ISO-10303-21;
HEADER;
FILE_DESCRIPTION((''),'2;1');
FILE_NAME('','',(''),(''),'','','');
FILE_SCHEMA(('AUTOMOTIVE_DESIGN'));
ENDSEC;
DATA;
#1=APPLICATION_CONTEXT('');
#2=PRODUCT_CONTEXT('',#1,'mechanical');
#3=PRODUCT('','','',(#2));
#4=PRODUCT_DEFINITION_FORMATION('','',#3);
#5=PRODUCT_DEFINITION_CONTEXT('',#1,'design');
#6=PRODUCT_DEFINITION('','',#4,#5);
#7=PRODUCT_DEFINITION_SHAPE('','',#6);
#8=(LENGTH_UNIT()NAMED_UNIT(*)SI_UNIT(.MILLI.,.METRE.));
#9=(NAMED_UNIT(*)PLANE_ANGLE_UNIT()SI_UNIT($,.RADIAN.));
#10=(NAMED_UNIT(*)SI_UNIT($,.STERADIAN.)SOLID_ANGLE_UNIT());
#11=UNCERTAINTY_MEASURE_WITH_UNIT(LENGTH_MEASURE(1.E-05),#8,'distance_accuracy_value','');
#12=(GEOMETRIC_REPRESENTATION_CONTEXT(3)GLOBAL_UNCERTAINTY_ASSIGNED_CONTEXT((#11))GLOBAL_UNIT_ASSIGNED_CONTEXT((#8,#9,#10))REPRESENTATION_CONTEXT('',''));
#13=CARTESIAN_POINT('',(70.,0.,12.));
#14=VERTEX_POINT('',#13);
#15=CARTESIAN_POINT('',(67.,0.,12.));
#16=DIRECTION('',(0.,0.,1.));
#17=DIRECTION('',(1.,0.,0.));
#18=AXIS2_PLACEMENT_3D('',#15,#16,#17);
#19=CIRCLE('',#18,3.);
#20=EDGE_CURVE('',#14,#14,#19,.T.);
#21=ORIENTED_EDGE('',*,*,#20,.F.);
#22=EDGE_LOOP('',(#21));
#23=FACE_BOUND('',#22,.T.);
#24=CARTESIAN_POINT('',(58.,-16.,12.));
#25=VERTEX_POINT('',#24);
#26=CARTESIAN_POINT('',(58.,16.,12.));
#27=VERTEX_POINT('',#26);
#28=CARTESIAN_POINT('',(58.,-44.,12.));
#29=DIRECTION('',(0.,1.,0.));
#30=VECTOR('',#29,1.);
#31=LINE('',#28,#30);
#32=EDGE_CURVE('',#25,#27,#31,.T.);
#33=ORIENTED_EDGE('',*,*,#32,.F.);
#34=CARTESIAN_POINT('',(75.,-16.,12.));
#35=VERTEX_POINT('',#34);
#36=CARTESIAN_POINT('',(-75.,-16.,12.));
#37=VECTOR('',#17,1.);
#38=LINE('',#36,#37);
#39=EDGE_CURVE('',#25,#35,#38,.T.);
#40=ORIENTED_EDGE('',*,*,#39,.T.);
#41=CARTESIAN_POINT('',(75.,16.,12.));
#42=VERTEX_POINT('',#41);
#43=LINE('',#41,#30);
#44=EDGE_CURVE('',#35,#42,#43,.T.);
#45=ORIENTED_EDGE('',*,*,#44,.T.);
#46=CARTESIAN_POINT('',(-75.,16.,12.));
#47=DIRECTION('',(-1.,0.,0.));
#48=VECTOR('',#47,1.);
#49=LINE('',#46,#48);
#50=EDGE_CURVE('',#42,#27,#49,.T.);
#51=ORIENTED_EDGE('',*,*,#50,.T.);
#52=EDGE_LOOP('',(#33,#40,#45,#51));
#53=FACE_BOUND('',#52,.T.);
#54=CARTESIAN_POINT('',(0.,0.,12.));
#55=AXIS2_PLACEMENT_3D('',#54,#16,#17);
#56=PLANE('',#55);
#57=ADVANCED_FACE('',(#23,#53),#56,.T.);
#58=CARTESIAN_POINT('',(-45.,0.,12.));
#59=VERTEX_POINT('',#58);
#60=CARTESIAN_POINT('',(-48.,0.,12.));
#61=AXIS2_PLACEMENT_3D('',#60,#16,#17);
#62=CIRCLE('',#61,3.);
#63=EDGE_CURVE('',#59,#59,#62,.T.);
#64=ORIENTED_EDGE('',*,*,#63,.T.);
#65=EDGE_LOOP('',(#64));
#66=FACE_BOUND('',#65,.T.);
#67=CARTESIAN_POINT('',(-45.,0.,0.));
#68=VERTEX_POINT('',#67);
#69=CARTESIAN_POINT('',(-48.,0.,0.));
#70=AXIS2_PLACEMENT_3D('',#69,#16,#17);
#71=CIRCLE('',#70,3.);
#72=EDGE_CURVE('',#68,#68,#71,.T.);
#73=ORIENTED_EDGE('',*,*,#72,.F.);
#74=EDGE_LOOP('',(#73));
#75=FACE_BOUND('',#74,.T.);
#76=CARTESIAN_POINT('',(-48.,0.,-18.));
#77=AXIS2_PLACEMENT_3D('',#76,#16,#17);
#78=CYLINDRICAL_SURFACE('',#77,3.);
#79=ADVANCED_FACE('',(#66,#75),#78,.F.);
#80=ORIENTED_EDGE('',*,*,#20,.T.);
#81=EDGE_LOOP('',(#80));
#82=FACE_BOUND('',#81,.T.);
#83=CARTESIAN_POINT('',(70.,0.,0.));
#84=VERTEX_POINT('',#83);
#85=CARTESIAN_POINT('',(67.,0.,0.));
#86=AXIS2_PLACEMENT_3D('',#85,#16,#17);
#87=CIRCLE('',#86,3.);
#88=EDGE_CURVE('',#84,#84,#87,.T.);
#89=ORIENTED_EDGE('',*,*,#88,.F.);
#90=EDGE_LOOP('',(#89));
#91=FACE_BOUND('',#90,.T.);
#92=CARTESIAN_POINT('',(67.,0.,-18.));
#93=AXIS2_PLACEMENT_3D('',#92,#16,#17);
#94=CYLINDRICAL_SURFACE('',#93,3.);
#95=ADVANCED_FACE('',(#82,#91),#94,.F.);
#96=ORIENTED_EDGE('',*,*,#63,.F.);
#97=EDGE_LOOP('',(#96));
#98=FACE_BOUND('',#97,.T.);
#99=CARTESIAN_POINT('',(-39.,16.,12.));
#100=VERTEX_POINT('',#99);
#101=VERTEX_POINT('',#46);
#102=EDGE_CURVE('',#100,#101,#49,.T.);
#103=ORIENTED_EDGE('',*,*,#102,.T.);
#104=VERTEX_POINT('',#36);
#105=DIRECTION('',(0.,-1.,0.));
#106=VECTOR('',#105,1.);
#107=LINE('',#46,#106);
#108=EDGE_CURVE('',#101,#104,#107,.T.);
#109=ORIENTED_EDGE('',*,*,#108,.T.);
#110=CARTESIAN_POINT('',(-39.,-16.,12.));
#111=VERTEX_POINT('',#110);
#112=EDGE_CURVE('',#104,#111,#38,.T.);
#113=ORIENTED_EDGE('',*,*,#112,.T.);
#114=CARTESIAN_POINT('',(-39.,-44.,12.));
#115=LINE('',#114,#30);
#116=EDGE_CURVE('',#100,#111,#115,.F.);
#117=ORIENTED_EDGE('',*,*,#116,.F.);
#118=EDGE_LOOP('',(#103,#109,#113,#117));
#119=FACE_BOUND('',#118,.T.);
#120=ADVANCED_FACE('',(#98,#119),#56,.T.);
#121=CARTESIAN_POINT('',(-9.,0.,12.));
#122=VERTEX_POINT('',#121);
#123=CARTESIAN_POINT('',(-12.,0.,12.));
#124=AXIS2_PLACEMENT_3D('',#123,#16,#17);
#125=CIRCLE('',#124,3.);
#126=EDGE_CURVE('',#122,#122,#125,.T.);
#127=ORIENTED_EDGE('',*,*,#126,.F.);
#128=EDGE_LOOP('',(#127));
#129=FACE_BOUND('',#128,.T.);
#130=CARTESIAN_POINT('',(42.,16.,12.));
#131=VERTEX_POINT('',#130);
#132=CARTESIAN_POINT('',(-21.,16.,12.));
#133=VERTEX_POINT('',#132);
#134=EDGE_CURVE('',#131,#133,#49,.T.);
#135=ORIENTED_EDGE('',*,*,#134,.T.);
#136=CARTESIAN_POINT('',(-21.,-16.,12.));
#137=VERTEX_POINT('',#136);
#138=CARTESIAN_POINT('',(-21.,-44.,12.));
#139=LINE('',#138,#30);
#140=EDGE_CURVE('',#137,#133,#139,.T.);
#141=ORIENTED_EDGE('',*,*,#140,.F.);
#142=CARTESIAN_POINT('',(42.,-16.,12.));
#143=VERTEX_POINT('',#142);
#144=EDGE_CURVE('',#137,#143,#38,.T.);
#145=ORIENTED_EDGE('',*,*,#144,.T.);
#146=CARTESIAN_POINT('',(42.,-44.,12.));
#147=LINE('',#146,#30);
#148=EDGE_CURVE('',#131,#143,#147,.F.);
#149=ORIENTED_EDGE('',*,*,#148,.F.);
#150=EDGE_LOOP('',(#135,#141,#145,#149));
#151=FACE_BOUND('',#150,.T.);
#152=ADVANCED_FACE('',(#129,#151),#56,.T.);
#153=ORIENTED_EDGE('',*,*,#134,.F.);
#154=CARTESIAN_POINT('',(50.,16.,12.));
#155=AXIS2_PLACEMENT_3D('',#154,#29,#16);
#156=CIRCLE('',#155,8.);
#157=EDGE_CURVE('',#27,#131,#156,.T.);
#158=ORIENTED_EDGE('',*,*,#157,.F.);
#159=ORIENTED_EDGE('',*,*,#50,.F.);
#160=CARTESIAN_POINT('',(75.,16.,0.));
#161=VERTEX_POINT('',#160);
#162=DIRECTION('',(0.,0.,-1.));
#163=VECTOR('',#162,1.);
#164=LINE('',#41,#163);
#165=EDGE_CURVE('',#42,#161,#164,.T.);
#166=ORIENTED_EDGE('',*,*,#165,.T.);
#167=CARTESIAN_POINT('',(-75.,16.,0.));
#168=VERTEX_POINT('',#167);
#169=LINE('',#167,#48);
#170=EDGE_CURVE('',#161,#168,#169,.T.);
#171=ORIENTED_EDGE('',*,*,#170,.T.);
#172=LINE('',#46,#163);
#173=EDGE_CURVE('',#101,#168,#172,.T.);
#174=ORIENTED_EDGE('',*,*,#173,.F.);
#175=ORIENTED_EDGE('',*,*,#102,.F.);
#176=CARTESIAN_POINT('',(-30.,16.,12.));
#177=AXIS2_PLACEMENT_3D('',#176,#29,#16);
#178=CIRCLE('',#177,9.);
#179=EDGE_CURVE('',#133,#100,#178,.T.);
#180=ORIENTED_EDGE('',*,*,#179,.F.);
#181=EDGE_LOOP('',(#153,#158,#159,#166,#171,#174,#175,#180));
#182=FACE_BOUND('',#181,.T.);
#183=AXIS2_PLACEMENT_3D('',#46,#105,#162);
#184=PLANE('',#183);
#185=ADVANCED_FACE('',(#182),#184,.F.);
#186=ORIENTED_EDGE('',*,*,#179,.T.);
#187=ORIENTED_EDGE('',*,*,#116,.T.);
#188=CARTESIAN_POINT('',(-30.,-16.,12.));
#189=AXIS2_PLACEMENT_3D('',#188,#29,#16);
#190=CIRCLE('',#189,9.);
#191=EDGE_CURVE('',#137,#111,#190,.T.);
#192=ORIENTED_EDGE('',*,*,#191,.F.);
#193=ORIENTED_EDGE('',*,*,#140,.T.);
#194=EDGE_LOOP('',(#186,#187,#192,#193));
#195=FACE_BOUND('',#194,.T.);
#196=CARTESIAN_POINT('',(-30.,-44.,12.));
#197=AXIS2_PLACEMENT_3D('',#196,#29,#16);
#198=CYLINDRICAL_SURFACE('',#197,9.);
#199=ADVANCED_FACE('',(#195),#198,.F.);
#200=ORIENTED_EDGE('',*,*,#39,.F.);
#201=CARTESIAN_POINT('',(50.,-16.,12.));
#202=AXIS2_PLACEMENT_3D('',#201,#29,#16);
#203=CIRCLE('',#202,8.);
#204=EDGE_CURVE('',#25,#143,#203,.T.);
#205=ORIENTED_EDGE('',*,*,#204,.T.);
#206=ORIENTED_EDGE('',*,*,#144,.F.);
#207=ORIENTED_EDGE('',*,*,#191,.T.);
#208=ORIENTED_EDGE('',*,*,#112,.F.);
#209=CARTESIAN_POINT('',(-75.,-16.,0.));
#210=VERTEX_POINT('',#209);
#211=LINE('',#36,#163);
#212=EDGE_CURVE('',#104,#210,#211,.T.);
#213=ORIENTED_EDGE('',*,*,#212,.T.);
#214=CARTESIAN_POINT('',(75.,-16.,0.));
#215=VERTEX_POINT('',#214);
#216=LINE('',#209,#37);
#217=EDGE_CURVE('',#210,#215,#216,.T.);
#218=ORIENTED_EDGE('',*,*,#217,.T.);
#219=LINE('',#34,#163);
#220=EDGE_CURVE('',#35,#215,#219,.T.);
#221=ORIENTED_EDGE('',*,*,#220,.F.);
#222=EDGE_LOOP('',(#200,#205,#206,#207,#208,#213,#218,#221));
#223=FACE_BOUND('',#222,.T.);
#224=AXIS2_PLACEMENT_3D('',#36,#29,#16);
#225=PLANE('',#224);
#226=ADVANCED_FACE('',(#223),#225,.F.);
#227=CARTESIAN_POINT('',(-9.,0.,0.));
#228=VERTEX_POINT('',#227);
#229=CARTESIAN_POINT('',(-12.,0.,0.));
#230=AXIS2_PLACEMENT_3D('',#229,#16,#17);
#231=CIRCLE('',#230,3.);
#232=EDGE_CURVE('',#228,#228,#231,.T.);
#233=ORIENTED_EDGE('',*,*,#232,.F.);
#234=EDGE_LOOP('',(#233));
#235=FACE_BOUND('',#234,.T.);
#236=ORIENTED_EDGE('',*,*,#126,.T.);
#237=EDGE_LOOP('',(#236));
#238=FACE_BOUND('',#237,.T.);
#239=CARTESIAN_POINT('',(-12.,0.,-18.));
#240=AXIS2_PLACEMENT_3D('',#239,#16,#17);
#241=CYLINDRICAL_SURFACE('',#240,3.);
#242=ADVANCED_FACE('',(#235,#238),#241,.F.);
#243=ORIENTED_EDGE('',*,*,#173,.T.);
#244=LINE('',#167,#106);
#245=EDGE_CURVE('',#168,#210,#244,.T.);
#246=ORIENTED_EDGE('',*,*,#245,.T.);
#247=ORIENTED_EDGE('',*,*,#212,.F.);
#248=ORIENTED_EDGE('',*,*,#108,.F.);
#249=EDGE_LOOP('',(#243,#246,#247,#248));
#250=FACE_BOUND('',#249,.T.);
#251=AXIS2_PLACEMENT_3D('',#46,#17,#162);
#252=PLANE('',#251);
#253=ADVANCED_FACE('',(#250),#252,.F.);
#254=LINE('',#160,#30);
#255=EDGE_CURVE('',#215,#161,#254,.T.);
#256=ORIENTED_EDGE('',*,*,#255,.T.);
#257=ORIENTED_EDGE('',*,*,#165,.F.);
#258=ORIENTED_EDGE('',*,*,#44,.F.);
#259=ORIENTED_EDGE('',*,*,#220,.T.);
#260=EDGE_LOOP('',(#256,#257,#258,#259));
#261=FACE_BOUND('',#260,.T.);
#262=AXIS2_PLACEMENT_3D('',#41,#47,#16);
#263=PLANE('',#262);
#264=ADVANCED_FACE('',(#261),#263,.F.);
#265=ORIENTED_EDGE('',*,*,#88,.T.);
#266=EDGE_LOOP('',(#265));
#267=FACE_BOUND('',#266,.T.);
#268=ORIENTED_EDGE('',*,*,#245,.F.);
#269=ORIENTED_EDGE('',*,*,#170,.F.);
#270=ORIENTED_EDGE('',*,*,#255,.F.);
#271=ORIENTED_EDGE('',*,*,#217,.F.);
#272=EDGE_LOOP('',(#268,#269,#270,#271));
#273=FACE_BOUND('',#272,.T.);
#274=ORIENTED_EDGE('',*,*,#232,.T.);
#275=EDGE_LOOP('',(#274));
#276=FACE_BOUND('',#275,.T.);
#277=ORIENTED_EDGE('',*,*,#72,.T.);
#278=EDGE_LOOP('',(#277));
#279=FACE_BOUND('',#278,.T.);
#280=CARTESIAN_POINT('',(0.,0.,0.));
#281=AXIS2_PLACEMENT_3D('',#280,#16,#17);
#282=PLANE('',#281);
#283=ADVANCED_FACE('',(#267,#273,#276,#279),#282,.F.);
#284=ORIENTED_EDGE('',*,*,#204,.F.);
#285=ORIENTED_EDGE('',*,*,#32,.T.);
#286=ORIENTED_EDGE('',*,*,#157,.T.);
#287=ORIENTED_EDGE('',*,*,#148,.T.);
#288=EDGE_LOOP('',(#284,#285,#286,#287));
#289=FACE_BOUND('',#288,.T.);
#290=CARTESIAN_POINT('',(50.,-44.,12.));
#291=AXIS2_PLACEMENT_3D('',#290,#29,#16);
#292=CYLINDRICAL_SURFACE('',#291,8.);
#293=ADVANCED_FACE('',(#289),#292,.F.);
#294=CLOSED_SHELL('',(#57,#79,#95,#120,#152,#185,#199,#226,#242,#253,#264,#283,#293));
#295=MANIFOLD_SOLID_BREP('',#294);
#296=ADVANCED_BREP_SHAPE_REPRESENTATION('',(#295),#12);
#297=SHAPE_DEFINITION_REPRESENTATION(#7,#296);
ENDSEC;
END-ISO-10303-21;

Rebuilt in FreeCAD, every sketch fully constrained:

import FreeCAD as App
import Part
import Sketcher
from FreeCAD import Vector
Q = App.Units.Quantity

doc = App.newDocument("Part")
body = doc.addObject("PartDesign::Body", "Body")

sketch1 = body.newObject("Sketcher::SketchObject", "Sketch")
sketch1.AttachmentSupport = (doc.getObject("XY_Plane"), [""])
sketch1.MapMode = "FlatFace"
sketch1.addGeometry(Part.LineSegment(Vector(-75, 16, 0), Vector(-75, -16, 0)), False)
sketch1.addGeometry(Part.LineSegment(Vector(-75, -16, 0), Vector(75, -16, 0)), False)
sketch1.addGeometry(Part.LineSegment(Vector(75, -16, 0), Vector(75, 16, 0)), False)
sketch1.addGeometry(Part.LineSegment(Vector(75, 16, 0), Vector(-75, 16, 0)), False)
sketch1.addConstraint(Sketcher.Constraint("Coincident", 0, 2, 1, 1))
sketch1.addConstraint(Sketcher.Constraint("Coincident", 1, 2, 2, 1))
sketch1.addConstraint(Sketcher.Constraint("Coincident", 2, 2, 3, 1))
sketch1.addConstraint(Sketcher.Constraint("Coincident", 3, 2, 0, 1))
sketch1.addConstraint(Sketcher.Constraint("Vertical", 0))
sketch1.addConstraint(Sketcher.Constraint("Horizontal", 1))
sketch1.addConstraint(Sketcher.Constraint("Vertical", 2))
sketch1.addConstraint(Sketcher.Constraint("Horizontal", 3))
sketch1.addConstraint(Sketcher.Constraint("Symmetric", 0, 2, 2, 2, -1, 1))
sketch1.addConstraint(Sketcher.Constraint("DistanceX", 1, 1, 1, 2, Q("150 mm")))
sketch1.addConstraint(Sketcher.Constraint("DistanceY", 0, 2, 0, 1, Q("32 mm")))
pad1 = body.newObject("PartDesign::Pad", "Pad")
pad1.Profile = sketch1
pad1.Length = 12

sketch2 = body.newObject("Sketcher::SketchObject", "Sketch001")
sketch2.AttachmentSupport = (doc.getObject("XZ_Plane"), [""])
sketch2.MapMode = "FlatFace"
sketch2.AttachmentOffset = App.Placement(Vector(0, 0, -16), App.Rotation())
sketch2.addGeometry(Part.Circle(Vector(50, 12, 0), Vector(0, 0, 1), 8), False)
sketch2.addGeometry(Part.Circle(Vector(-30, 12, 0), Vector(0, 0, 1), 9), False)
sketch2.addConstraint(Sketcher.Constraint("Horizontal", 0, 3, 1, 3))
sketch2.addConstraint(Sketcher.Constraint("Diameter", 0, Q("16 mm")))
sketch2.addConstraint(Sketcher.Constraint("Diameter", 1, Q("18 mm")))
sketch2.addConstraint(Sketcher.Constraint("DistanceX", -1, 1, 0, 3, Q("50 mm")))
sketch2.addConstraint(Sketcher.Constraint("DistanceY", -1, 1, 0, 3, Q("12 mm")))
sketch2.addConstraint(Sketcher.Constraint("DistanceX", 1, 3, -1, 1, Q("30 mm")))
pocket1 = body.newObject("PartDesign::Pocket", "Pocket")
pocket1.Profile = sketch2
pocket1.Length = 60
pocket1.Reversed = True

sketch3 = body.newObject("Sketcher::SketchObject", "Sketch002")
sketch3.AttachmentSupport = (doc.getObject("XY_Plane"), [""])
sketch3.MapMode = "FlatFace"
sketch3.AttachmentOffset = App.Placement(Vector(0, 0, 12), App.Rotation())
sketch3.addGeometry(Part.Circle(Vector(67, 0, 0), Vector(0, 0, 1), 3), False)
sketch3.addGeometry(Part.Circle(Vector(-48, 0, 0), Vector(0, 0, 1), 3), False)
sketch3.addGeometry(Part.Circle(Vector(-12, 0, 0), Vector(0, 0, 1), 3), False)
sketch3.addConstraint(Sketcher.Constraint("Equal", 0, 1))
sketch3.addConstraint(Sketcher.Constraint("Equal", 1, 2))
sketch3.addConstraint(Sketcher.Constraint("PointOnObject", 0, 3, -1))
sketch3.addConstraint(Sketcher.Constraint("PointOnObject", 1, 3, -1))
sketch3.addConstraint(Sketcher.Constraint("PointOnObject", 2, 3, -1))
sketch3.addConstraint(Sketcher.Constraint("Diameter", 0, Q("6 mm")))
sketch3.addConstraint(Sketcher.Constraint("DistanceX", -1, 1, 0, 3, Q("67 mm")))
sketch3.addConstraint(Sketcher.Constraint("DistanceX", 1, 3, -1, 1, Q("48 mm")))
sketch3.addConstraint(Sketcher.Constraint("DistanceX", 2, 3, -1, 1, Q("12 mm")))
pocket2 = body.newObject("PartDesign::Pocket", "Pocket001")
pocket2.Profile = sketch3
pocket2.Length = 30

doc.recompute()
